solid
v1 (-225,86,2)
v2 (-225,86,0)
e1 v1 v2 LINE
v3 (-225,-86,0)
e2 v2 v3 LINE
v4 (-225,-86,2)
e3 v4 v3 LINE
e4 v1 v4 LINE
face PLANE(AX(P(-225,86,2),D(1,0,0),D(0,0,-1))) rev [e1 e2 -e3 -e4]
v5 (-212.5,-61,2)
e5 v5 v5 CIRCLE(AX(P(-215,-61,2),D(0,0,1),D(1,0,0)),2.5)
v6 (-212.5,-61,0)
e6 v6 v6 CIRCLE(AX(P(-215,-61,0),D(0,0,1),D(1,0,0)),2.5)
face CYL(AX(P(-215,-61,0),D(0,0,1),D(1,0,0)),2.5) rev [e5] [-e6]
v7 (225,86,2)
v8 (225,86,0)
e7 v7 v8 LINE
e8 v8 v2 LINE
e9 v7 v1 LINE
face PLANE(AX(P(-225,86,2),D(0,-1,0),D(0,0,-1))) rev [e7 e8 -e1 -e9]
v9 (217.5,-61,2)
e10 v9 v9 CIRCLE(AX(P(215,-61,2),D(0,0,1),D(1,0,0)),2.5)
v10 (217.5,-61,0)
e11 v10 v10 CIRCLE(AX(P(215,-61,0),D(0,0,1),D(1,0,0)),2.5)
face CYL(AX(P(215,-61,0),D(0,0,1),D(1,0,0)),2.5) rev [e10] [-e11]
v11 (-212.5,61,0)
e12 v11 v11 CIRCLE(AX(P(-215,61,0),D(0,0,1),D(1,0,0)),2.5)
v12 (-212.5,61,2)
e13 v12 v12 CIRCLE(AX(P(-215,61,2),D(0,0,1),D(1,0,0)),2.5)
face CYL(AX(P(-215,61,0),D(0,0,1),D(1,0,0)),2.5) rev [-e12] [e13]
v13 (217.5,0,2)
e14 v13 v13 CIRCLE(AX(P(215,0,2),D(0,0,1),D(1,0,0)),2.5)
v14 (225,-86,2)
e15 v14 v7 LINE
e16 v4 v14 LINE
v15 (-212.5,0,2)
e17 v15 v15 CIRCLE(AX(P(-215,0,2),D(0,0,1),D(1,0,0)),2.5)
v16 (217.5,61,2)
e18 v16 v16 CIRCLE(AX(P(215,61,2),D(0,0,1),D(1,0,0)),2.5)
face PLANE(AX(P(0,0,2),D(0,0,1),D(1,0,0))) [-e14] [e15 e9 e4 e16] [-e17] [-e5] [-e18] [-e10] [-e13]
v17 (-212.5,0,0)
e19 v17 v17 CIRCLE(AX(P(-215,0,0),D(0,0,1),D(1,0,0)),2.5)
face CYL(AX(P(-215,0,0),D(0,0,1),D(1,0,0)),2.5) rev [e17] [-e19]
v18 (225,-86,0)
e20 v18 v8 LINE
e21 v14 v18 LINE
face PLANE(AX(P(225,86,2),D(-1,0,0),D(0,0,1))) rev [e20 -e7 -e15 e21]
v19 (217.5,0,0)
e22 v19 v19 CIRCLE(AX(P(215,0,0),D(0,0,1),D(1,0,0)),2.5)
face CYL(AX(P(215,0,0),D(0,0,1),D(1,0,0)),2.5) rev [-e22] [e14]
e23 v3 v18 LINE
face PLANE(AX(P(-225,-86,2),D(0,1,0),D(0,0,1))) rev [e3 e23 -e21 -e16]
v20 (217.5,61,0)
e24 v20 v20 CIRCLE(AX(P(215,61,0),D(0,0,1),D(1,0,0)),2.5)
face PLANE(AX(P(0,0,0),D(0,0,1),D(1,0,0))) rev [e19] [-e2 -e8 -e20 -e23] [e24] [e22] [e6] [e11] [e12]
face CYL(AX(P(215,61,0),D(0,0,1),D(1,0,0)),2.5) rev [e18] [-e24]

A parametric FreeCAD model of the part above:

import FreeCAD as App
import Part
import Sketcher
Q = App.Units.Quantity

doc = App.newDocument("Part")
body = doc.addObject("PartDesign::Body", "Body")

# Sketch on XY plane
sketch1 = doc.addObject("Sketcher::SketchObject", "Sketch")
body.addObject(sketch1)
sketch1.AttachmentSupport = (doc.XY_Plane, [""])
sketch1.MapMode = "FlatFace"
sketch1.addGeometry([
    Part.LineSegment(App.Vector(-225, 86, 0), App.Vector(-225, -86, 0)),
    Part.LineSegment(App.Vector(-225, -86, 0), App.Vector(225, -86, 0)),
    Part.LineSegment(App.Vector(225, -86, 0), App.Vector(225, 86, 0)),
    Part.LineSegment(App.Vector(225, 86, 0), App.Vector(-225, 86, 0)),
], False)
sketch1.addConstraint([
    Sketcher.Constraint("Coincident", 0, 2, 1, 1),
    Sketcher.Constraint("Coincident", 1, 2, 2, 1),
    Sketcher.Constraint("Coincident", 2, 2, 3, 1),
    Sketcher.Constraint("Coincident", 3, 2, 0, 1),
    Sketcher.Constraint("Vertical", 0),
    Sketcher.Constraint("Horizontal", 1),
    Sketcher.Constraint("Vertical", 2),
    Sketcher.Constraint("Horizontal", 3),
    Sketcher.Constraint("Symmetric", 0, 2, 2, 2, -1, 1),
    Sketcher.Constraint("DistanceX", 1, 1, 1, 2, Q("450 mm")),
    Sketcher.Constraint("DistanceY", 0, 2, 0, 1, Q("172 mm")),
])
pad1 = doc.addObject("PartDesign::Pad", "Pad")
body.addObject(pad1)
pad1.Profile = sketch1
pad1.Length = 2

# Sketch on XY plane
sketch2 = doc.addObject("Sketcher::SketchObject", "Sketch001")
body.addObject(sketch2)
sketch2.AttachmentSupport = (doc.XY_Plane, [""])
sketch2.MapMode = "FlatFace"
sketch2.AttachmentOffset = App.Placement(App.Vector(0, 0, 2), App.Rotation())
sketch2.addGeometry([
    Part.Circle(App.Vector(-215, 61, 0), App.Vector(0, 0, 1), 2.5),  # 0
    Part.Circle(App.Vector(215, 61, 0), App.Vector(0, 0, 1), 2.5),  # 1
    Part.Circle(App.Vector(215, -61, 0), App.Vector(0, 0, 1), 2.5),  # 2
    Part.Circle(App.Vector(-215, -61, 0), App.Vector(0, 0, 1), 2.5),  # 3
    Part.Circle(App.Vector(-215, 0, 0), App.Vector(0, 0, 1), 2.5),  # 4
    Part.Circle(App.Vector(215, 0, 0), App.Vector(0, 0, 1), 2.5),  # 5
], False)
sketch2.addConstraint([
    Sketcher.Constraint("Equal", 0, 1),
    Sketcher.Constraint("Equal", 1, 2),
    Sketcher.Constraint("Equal", 2, 3),
    Sketcher.Constraint("Equal", 3, 4),
    Sketcher.Constraint("Equal", 4, 5),
    Sketcher.Constraint("Symmetric", 0, 3, 2, 3, -1, 1),
    Sketcher.Constraint("Symmetric", 1, 3, 3, 3, -1, 1),
    Sketcher.Constraint("Symmetric", 4, 3, 5, 3, -1, 1),
    Sketcher.Constraint("Symmetric", 0, 3, 1, 3, -2),
    Sketcher.Constraint("PointOnObject", 4, 3, -1),
    Sketcher.Constraint("Vertical", 3, 3, 4, 3),
    Sketcher.Constraint("Diameter", 0, Q("5 mm")),
    Sketcher.Constraint("DistanceX", 0, 3, -1, 1, Q("215 mm")),
    Sketcher.Constraint("DistanceY", -1, 1, 0, 3, Q("61 mm")),
])
pocket1 = doc.addObject("PartDesign::Pocket", "Pocket")
body.addObject(pocket1)
pocket1.Profile = sketch2
pocket1.Type = "ThroughAll"

doc.recompute()
